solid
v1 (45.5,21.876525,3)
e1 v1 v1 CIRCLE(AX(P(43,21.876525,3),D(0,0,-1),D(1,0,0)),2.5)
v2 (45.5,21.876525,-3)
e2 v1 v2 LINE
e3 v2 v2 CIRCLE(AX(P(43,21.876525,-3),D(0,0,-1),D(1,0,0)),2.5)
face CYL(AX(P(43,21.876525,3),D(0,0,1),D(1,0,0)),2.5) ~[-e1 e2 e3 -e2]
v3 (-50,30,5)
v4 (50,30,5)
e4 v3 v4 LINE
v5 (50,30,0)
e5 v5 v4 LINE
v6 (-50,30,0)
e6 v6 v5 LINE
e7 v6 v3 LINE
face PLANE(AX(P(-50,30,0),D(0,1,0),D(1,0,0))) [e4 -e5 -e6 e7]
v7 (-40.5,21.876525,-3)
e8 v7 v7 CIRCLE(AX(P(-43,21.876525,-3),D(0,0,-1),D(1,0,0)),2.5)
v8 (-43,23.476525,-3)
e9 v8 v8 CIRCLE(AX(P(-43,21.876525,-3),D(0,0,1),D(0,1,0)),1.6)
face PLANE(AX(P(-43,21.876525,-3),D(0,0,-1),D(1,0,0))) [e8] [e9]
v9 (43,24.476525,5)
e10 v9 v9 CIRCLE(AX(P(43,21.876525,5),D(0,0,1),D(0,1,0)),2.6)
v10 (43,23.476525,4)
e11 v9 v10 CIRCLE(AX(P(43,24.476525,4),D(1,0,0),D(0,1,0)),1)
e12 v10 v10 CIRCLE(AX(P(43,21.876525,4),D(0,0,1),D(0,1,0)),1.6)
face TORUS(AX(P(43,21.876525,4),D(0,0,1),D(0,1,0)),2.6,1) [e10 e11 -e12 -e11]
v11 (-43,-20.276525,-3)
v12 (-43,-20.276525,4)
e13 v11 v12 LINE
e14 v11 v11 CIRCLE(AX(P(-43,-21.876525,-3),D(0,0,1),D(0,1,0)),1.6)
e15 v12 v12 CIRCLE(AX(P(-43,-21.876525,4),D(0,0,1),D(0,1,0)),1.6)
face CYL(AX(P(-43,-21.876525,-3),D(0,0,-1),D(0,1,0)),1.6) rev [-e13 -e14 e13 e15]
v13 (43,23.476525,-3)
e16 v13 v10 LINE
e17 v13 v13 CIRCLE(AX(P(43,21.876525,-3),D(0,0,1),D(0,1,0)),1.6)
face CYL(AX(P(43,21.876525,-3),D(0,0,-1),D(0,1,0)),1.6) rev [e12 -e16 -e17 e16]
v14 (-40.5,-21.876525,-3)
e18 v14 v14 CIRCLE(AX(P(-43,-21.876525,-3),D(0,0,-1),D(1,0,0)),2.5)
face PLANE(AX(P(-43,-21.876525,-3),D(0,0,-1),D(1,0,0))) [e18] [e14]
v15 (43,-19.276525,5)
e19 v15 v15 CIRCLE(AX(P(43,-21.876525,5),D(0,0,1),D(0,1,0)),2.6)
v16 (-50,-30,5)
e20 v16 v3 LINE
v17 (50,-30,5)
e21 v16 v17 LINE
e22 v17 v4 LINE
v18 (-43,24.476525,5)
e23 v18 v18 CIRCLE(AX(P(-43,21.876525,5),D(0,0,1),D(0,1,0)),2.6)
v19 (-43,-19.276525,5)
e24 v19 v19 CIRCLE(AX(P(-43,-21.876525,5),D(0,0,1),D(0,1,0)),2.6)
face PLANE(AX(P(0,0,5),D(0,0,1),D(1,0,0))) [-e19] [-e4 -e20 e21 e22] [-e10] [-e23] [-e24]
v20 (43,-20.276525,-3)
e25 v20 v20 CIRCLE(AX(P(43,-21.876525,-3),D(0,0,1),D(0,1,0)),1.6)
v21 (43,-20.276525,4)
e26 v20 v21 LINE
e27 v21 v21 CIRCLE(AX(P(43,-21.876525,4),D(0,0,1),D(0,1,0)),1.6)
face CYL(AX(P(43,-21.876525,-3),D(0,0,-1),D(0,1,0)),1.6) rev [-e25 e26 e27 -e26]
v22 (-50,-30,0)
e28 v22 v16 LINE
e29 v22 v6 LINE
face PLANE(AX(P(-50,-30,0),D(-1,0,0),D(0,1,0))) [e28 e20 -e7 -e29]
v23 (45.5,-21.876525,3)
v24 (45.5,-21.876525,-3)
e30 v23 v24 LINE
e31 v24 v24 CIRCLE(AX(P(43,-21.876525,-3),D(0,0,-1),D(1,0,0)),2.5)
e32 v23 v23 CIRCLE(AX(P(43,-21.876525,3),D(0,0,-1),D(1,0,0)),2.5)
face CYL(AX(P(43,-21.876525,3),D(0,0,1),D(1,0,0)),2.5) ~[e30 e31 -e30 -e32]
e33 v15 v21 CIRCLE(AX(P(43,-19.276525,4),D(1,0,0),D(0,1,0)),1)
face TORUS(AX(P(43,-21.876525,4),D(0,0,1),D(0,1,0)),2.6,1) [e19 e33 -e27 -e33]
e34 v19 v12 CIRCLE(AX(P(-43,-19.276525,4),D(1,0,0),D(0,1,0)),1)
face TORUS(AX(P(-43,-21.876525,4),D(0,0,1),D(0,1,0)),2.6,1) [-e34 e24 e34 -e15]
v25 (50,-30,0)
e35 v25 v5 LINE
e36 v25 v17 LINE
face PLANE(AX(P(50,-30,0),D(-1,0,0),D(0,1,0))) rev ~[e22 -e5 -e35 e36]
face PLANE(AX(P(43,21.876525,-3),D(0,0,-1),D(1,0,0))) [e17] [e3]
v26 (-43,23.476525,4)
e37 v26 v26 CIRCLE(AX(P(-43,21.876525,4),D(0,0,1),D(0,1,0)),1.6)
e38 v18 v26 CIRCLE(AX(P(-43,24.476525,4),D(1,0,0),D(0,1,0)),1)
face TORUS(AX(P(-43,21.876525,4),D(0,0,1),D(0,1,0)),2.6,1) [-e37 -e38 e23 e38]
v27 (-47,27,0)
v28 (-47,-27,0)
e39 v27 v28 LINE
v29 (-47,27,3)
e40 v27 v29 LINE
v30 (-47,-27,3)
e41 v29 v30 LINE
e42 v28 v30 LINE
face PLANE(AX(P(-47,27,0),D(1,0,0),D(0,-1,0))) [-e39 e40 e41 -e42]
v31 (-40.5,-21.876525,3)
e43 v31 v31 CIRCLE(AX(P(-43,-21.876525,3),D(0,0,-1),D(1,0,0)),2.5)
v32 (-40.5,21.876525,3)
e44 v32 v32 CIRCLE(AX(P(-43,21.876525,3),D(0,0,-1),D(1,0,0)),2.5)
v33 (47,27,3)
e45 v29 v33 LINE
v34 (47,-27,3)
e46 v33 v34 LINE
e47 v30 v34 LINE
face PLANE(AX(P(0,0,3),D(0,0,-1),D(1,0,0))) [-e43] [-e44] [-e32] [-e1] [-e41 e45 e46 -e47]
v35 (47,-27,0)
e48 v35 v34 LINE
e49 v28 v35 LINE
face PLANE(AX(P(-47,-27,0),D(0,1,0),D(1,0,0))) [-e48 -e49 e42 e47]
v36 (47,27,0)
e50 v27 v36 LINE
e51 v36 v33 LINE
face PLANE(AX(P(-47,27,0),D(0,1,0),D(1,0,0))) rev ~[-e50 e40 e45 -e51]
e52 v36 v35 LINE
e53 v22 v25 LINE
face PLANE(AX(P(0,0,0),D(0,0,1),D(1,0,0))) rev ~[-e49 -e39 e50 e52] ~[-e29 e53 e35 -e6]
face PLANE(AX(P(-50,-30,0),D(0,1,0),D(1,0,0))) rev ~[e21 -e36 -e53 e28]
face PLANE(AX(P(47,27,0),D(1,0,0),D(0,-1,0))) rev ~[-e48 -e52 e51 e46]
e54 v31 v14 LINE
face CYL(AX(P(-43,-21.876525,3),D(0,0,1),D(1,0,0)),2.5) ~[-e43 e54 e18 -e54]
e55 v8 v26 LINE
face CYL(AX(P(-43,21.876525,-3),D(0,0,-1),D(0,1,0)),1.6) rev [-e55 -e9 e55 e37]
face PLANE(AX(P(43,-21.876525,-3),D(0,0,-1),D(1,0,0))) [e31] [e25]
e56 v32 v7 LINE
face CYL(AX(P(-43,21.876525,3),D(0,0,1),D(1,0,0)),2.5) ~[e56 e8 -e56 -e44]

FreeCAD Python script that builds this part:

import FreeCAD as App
import Part
import Sketcher

V = App.Vector


def edges_at(feature, points):
    """Names of the edges that pass closest to the given points."""
    edges = feature.Shape.Edges
    near = lambda p: min(range(len(edges)), key=lambda i: edges[i].distToShape(Part.Vertex(*p))[0])
    return sorted({f"Edge{near(p) + 1}" for p in points})


def add_polygon(sketch, points):
    """Adds a closed chain of lines whose ends are joined by coincident constraints."""
    first, n = sketch.GeometryCount, len(points)
    for a, b in zip(points, points[1:] + points[:1]):
        sketch.addGeometry(Part.LineSegment(App.Vector(*a, 0), App.Vector(*b, 0)), False)
    for i in range(n):
        sketch.addConstraint(Sketcher.Constraint("Coincident", first + i, 2, first + (i + 1) % n, 1))

doc = App.newDocument("Part")
body = doc.addObject("PartDesign::Body", "Body")

# Sketch on XY plane
sketch1 = body.newObject("Sketcher::SketchObject", "Sketch")
sketch1.AttachmentSupport = (doc.getObject("XY_Plane"), [""])
sketch1.MapMode = "FlatFace"
add_polygon(sketch1, [(-50, 30), (-50, -30), (50, -30), (50, 30)])  # lines 0-3
sketch1.addConstraint([
    Sketcher.Constraint("Vertical", 0),
    Sketcher.Constraint("Horizontal", 1),
    Sketcher.Constraint("Vertical", 2),
    Sketcher.Constraint("Horizontal", 3),
    Sketcher.Constraint("Symmetric", 0, 2, 2, 2, -1, 1),
    Sketcher.Constraint("DistanceX", 1, 1, 1, 2, 100.0),
    Sketcher.Constraint("DistanceY", 0, 2, 0, 1, 60.0),
])
pad1 = body.newObject("PartDesign::Pad", "Pad")
pad1.Profile = sketch1
pad1.Length = 5

# Sketch on XY plane
sketch2 = body.newObject("Sketcher::SketchObject", "Sketch001")
sketch2.AttachmentSupport = (doc.getObject("XY_Plane"), [""])
sketch2.MapMode = "FlatFace"
add_polygon(sketch2, [(-47, -27), (-47, 27), (47, 27), (47, -27)])  # lines 0-3
sketch2.addConstraint([
    Sketcher.Constraint("Vertical", 0),
    Sketcher.Constraint("Horizontal", 1),
    Sketcher.Constraint("Vertical", 2),
    Sketcher.Constraint("Horizontal", 3),
    Sketcher.Constraint("Symmetric", 0, 2, 2, 2, -1, 1),
    Sketcher.Constraint("DistanceX", 1, 1, 1, 2, 94.0),
    Sketcher.Constraint("DistanceY", 0, 1, 0, 2, 54.0),
])
pocket1 = body.newObject("PartDesign::Pocket", "Pocket")
pocket1.Profile = sketch2
pocket1.Length = 3
pocket1.Reversed = True

# Sketch on XY plane
sketch3 = body.newObject("Sketcher::SketchObject", "Sketch002")
sketch3.AttachmentSupport = (doc.getObject("XY_Plane"), [""])
sketch3.MapMode = "FlatFace"
sketch3.AttachmentOffset = App.Placement(V(0, 0, 3), App.Rotation())
sketch3.addGeometry([
    Part.Circle(V(-43, -21.9, 0), V(0, 0, 1), 2.5),
    Part.Circle(V(-43, 21.9, 0), V(0, 0, 1), 2.5),
    Part.Circle(V(43, 21.9, 0), V(0, 0, 1), 2.5),
    Part.Circle(V(43, -21.9, 0), V(0, 0, 1), 2.5),
], False)
sketch3.addConstraint([
    Sketcher.Constraint("Equal", 0, 1),
    Sketcher.Constraint("Equal", 1, 2),
    Sketcher.Constraint("Equal", 2, 3),
    Sketcher.Constraint("Symmetric", 0, 3, 2, 3, -1, 1),
    Sketcher.Constraint("Symmetric", 1, 3, 3, 3, -1, 1),
    Sketcher.Constraint("Symmetric", 1, 3, 2, 3, -2),
    Sketcher.Constraint("Diameter", 0, 5.0),
    Sketcher.Constraint("DistanceX", 0, 3, -1, 1, 43.0),
    Sketcher.Constraint("DistanceY", 0, 3, 1, 3, 43.75305),
])
pad2 = body.newObject("PartDesign::Pad", "Pad001")
pad2.Profile = sketch3
pad2.Length = 6
pad2.Reversed = True

# Sketch on XY plane
sketch4 = body.newObject("Sketcher::SketchObject", "Sketch003")
sketch4.AttachmentSupport = (doc.getObject("XY_Plane"), [""])
sketch4.MapMode = "FlatFace"
sketch4.AttachmentOffset = App.Placement(V(0, 0, -3), App.Rotation())
sketch4.addGeometry([
    Part.Circle(V(-43, -21.9, 0), V(0, 0, 1), 1.6),
    Part.Circle(V(-43, 21.9, 0), V(0, 0, 1), 1.6),
    Part.Circle(V(43, -21.9, 0), V(0, 0, 1), 1.6),
    Part.Circle(V(43, 21.9, 0), V(0, 0, 1), 1.6),
], False)
sketch4.addConstraint([
    Sketcher.Constraint("Equal", 0, 1),
    Sketcher.Constraint("Equal", 1, 2),
    Sketcher.Constraint("Equal", 2, 3),
    Sketcher.Constraint("Symmetric", 1, 3, 2, 3, -1, 1),
    Sketcher.Constraint("Symmetric", 0, 3, 3, 3, -1, 1),
    Sketcher.Constraint("Symmetric", 0, 3, 2, 3, -2),
    Sketcher.Constraint("Diameter", 0, 3.2),
    Sketcher.Constraint("DistanceX", 0, 3, -1, 1, 43.0),
    Sketcher.Constraint("DistanceY", 0, 3, 1, 3, 43.75305),
])
pocket2 = body.newObject("PartDesign::Pocket", "Pocket001")
pocket2.Profile = sketch4
pocket2.Length = 8
pocket2.Reversed = True
doc.recompute()

fillet = body.newObject("PartDesign::Fillet", "Fillet")
fillet.Base = (pocket2, edges_at(pocket2, [
    (43, -23.477, 5),
    (43, 20.277, 5),
    (-43, 20.277, 5),
    (-43, -23.477, 5),
]))
fillet.Radius = 1

doc.recompute()
